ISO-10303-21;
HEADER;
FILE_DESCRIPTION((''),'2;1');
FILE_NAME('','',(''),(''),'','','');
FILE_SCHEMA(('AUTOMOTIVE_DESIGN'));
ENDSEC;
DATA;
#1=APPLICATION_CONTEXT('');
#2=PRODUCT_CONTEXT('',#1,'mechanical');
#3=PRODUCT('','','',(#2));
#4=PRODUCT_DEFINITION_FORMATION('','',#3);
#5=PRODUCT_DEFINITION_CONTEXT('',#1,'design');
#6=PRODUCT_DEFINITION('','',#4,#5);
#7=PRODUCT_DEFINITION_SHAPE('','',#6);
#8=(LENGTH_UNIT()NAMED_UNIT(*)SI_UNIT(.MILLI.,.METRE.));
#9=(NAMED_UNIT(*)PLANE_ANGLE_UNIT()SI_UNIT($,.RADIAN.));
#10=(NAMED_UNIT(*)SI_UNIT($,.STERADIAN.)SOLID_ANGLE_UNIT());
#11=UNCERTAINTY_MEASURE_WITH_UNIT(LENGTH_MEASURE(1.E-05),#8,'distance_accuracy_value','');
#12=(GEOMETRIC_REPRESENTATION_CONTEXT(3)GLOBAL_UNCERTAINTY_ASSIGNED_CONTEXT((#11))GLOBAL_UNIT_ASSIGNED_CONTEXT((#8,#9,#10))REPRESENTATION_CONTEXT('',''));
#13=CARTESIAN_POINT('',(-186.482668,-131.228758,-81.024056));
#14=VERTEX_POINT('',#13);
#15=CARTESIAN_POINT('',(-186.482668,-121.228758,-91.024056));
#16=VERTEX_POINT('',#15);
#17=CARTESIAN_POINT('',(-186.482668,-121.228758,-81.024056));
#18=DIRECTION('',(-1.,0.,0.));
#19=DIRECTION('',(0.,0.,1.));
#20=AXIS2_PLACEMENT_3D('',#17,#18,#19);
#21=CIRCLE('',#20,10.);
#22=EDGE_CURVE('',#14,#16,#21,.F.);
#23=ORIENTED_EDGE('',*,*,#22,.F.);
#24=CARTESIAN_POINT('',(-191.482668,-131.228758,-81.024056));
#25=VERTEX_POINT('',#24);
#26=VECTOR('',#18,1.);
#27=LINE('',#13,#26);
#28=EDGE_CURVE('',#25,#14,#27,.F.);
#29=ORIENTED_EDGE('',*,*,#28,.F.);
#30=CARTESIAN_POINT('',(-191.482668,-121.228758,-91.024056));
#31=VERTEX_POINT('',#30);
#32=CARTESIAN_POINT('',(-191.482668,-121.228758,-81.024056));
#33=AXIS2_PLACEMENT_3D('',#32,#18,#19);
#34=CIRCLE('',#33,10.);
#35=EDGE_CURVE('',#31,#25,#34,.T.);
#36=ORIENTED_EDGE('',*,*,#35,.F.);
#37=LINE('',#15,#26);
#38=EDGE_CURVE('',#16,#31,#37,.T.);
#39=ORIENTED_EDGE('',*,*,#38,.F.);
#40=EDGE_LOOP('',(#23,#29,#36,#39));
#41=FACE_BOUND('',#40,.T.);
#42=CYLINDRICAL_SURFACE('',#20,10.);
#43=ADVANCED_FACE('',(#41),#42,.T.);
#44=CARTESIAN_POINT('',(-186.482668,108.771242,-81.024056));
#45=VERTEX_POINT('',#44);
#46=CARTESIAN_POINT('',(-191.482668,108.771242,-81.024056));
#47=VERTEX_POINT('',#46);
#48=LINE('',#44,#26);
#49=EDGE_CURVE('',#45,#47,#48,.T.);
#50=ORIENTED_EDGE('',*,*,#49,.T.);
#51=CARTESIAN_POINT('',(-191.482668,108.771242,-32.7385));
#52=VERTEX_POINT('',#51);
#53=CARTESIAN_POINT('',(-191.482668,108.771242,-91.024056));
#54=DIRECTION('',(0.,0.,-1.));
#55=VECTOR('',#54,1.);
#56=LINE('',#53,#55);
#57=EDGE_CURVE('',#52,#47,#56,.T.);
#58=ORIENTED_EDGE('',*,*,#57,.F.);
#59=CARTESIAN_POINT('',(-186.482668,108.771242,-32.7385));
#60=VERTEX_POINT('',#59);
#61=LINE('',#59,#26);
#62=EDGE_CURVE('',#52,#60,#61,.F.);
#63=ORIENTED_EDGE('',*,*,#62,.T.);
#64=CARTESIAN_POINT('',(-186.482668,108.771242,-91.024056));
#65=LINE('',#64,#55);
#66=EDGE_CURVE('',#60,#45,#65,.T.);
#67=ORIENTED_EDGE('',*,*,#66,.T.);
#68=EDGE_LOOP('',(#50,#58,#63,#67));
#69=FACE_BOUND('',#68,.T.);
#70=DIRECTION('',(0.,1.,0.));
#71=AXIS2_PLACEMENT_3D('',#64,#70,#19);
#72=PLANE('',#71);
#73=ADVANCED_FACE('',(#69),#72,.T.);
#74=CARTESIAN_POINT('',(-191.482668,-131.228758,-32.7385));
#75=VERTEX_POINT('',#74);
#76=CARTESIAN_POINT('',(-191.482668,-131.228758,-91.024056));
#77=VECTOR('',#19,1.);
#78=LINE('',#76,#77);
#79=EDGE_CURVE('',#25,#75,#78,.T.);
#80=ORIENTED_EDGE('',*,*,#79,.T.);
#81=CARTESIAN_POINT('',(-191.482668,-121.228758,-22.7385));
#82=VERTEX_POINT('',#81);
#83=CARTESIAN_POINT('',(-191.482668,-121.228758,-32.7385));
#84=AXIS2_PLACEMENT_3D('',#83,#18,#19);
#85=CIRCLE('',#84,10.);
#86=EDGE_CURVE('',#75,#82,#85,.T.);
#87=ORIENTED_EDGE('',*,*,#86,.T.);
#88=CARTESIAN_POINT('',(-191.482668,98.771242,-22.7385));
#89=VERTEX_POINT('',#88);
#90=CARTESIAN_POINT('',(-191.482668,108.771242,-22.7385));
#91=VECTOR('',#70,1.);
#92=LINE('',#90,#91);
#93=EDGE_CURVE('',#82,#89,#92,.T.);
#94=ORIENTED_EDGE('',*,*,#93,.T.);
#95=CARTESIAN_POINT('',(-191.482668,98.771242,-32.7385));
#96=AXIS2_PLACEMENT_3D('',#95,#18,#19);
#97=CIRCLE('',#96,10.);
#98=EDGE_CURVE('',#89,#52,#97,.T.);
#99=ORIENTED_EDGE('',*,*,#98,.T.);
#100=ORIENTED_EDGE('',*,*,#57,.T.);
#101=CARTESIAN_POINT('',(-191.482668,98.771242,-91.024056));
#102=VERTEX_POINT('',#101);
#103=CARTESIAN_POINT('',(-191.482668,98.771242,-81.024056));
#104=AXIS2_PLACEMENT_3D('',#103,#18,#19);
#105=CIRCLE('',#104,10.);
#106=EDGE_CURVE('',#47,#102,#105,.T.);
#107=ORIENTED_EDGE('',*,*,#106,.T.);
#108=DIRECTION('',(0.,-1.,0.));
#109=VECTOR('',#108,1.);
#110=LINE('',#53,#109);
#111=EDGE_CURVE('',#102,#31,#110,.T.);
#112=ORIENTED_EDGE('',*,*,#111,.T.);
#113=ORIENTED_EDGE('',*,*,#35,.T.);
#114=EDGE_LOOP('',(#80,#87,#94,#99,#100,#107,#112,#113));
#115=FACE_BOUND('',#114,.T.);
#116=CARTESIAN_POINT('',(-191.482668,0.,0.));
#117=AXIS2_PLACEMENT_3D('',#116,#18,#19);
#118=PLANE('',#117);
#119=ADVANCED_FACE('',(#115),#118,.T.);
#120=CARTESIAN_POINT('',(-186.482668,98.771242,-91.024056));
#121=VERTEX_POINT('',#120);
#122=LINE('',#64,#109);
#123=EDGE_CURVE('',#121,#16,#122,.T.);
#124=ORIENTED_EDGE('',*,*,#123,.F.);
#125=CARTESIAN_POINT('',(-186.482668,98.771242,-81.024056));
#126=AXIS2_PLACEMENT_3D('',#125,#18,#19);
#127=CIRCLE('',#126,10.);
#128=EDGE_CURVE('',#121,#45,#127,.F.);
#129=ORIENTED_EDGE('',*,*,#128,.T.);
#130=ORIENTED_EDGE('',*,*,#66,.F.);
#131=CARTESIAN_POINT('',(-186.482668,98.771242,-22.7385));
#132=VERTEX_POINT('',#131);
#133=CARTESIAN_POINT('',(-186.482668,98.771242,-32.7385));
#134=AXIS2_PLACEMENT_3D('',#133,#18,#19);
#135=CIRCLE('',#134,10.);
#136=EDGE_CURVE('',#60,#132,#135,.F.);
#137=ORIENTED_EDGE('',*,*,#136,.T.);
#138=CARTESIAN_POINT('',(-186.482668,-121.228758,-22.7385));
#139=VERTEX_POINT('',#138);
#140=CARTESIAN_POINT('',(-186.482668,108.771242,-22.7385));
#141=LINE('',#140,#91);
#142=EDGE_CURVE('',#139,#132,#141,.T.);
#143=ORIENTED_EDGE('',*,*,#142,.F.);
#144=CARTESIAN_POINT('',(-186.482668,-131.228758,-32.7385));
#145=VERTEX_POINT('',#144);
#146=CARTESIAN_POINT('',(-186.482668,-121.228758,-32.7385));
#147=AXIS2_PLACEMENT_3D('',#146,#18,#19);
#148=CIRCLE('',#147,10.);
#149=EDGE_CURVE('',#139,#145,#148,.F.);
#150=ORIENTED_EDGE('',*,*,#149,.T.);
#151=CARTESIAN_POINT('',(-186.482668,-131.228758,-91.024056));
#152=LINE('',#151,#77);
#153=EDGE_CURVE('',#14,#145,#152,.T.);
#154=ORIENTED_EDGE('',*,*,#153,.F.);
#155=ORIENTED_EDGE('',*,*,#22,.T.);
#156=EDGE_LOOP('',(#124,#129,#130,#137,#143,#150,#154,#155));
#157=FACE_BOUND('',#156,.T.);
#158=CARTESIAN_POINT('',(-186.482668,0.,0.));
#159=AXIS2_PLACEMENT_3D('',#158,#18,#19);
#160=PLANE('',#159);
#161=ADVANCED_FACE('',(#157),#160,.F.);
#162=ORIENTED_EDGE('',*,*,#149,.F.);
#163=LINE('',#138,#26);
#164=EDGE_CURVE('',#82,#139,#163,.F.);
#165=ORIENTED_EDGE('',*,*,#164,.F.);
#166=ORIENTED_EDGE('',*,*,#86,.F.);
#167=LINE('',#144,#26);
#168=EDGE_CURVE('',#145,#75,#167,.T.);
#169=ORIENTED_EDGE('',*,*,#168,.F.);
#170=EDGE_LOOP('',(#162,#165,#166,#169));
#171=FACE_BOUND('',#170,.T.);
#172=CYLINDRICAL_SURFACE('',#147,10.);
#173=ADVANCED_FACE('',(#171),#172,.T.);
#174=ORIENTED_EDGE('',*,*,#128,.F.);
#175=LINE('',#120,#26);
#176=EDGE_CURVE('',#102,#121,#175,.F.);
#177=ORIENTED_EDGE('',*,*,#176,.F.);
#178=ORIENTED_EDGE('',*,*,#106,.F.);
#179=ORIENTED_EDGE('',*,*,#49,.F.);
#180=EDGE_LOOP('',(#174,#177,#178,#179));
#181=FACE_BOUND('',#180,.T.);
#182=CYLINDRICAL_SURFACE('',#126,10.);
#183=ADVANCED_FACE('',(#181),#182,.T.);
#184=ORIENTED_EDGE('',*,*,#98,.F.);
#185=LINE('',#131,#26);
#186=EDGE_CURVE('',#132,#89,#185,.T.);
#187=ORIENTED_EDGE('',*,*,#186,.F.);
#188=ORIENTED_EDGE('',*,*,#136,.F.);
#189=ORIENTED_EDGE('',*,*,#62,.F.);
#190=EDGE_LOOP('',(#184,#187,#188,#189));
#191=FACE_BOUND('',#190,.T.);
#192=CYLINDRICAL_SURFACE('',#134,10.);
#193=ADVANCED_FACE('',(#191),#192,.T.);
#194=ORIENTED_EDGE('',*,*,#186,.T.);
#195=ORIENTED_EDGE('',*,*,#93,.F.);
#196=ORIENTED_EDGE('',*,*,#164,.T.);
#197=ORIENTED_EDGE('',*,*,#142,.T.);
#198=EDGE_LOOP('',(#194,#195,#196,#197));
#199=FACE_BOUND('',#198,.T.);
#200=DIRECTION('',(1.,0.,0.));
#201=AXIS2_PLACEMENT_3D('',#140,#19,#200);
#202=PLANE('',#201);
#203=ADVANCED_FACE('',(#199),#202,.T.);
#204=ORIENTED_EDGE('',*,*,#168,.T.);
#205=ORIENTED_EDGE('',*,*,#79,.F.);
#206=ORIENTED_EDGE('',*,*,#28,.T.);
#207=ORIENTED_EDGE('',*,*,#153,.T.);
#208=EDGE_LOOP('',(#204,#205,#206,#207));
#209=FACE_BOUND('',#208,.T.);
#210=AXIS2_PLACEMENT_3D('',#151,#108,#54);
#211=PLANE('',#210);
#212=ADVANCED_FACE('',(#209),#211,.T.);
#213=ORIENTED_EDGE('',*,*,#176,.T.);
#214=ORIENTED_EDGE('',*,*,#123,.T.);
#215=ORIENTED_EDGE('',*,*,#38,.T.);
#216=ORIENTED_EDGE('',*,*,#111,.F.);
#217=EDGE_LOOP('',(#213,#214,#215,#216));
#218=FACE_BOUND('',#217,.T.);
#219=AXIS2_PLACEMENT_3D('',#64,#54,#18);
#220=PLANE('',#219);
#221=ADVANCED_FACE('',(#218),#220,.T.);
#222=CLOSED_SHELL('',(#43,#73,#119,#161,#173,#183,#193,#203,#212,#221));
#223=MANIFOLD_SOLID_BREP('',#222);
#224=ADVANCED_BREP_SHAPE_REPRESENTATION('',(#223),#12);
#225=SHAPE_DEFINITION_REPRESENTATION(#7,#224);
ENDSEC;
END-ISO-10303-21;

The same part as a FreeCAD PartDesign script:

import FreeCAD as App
import Part
import Sketcher
from FreeCAD import Vector


def edges_at(feature, points):
    """Names of the edges that pass closest to the given points."""
    edges = feature.Shape.Edges
    near = lambda p: min(range(len(edges)), key=lambda i: edges[i].distToShape(Part.Vertex(*p))[0])
    return sorted({f"Edge{near(p) + 1}" for p in points})


def add_polygon(sketch, points):
    """Adds a closed chain of lines whose ends are joined by coincident constraints."""
    first, n = sketch.GeometryCount, len(points)
    for a, b in zip(points, points[1:] + points[:1]):
        sketch.addGeometry(Part.LineSegment(App.Vector(*a, 0), App.Vector(*b, 0)), False)
    for i in range(n):
        sketch.addConstraint(Sketcher.Constraint("Coincident", first + i, 2, first + (i + 1) % n, 1))

doc = App.newDocument("Part")
body = doc.addObject("PartDesign::Body", "Body")

sketch1 = body.newObject("Sketcher::SketchObject", "Sketch")
sketch1.AttachmentSupport = (doc.getObject("YZ_Plane"), [""])
sketch1.MapMode = "FlatFace"
sketch1.AttachmentOffset = App.Placement(Vector(0, 0, -191.482668), App.Rotation())
add_polygon(sketch1, [(108.771242, -91.024056), (-131.228758, -91.024056), (-131.228758, -22.7385), (108.771242, -22.7385)])
sketch1.addConstraint(Sketcher.Constraint("Horizontal", 0))
sketch1.addConstraint(Sketcher.Constraint("Vertical", 1))
sketch1.addConstraint(Sketcher.Constraint("Horizontal", 2))
sketch1.addConstraint(Sketcher.Constraint("Vertical", 3))
sketch1.addConstraint(Sketcher.Constraint("DistanceX", 0, 2, 0, 1, 240.0))
sketch1.addConstraint(Sketcher.Constraint("DistanceY", 1, 2, -1, 1, 22.7385))
sketch1.addConstraint(Sketcher.Constraint("DistanceY", 1, 1, 1, 2, 68.285557))
sketch1.addConstraint(Sketcher.Constraint("DistanceX", 0, 2, -1, 1, 131.228758))
pad1 = body.newObject("PartDesign::Pad", "Pad")
pad1.Profile = sketch1
pad1.Length = 5
doc.recompute()

fillet = body.newObject("PartDesign::Fillet", "Fillet")
fillet.Base = (pad1, edges_at(pad1, [
    (-188.983, 108.771, -91.024),
    (-188.983, 108.771, -22.738),
    (-188.983, -131.229, -22.738),
    (-188.983, -131.229, -91.024),
]))
fillet.Radius = 10

doc.recompute()
